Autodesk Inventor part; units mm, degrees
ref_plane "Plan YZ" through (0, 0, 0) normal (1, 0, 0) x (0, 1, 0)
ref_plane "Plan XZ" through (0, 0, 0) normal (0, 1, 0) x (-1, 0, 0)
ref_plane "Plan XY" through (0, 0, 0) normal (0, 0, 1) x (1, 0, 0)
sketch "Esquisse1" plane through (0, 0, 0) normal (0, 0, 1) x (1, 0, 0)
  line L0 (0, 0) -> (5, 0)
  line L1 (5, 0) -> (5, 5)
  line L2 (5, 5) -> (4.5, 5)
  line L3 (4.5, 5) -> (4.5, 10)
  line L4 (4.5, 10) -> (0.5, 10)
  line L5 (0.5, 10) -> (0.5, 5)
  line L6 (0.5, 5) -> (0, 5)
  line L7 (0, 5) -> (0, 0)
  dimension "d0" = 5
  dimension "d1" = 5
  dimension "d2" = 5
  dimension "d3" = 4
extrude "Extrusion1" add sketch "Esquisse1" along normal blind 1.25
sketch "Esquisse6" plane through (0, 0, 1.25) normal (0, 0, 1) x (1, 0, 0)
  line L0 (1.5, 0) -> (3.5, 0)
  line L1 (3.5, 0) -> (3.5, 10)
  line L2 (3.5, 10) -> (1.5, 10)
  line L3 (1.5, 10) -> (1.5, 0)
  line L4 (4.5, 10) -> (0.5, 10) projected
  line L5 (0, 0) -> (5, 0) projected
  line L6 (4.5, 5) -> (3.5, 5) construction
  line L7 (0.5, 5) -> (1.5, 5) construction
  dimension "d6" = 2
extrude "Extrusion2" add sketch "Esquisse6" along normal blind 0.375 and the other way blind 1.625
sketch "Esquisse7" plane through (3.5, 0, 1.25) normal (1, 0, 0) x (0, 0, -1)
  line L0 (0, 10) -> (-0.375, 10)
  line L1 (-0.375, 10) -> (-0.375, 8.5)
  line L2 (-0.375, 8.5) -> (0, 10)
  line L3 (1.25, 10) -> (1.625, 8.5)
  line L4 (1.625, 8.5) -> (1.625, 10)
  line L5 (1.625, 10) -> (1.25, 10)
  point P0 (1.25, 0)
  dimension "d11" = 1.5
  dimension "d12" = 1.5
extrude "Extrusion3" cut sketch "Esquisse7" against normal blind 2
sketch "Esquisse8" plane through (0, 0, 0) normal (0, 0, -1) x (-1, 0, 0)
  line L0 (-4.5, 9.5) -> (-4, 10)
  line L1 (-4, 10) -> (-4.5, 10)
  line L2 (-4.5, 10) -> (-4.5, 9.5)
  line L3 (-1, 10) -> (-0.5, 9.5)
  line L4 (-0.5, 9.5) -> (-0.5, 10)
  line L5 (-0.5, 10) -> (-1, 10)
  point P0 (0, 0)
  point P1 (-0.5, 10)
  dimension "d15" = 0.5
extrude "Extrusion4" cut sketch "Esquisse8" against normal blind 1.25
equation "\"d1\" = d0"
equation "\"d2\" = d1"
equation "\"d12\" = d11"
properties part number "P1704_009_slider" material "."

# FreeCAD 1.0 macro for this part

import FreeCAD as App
import Part
import Sketcher
from FreeCAD import Vector
Q = App.Units.Quantity

doc = App.newDocument("Part")
params = doc.addObject("Spreadsheet::Sheet", "Params")
for row, (alias, value) in enumerate([
    ("sketch1_width", "5 mm"),
    ("sketch1_width2", "4 mm"),
    ("pad1_length", "1.25 mm"),
    ("sketch2_width", "2 mm"),
    ("sketch2_height", "10 mm"),
    ("pad2_length", "0.375 mm"),
    ("pad2_length2", "1.625 mm"),
    ("sketch3_width", "1.5 mm"),
    ("pocket1_length", "2 mm"),
    ("sketch4_width", "0.5 mm"),
    ("pocket2_length", "1.25 mm"),
], start=1):
    params.set(f"A{row}", alias)
    params.set(f"B{row}", "=" + value)
    params.setAlias(f"B{row}", alias)

body = doc.addObject("PartDesign::Body", "Body")

sketch1 = body.newObject("Sketcher::SketchObject", "Sketch")
sketch1.AttachmentSupport = (doc.getObject("XY_Plane"), [""])
sketch1.MapMode = "FlatFace"
sketch1.addGeometry([
    Part.LineSegment(Vector(0, 5, 0), Vector(0, 0, 0)),
    Part.LineSegment(Vector(0, 0, 0), Vector(5, 0, 0)),
    Part.LineSegment(Vector(5, 0, 0), Vector(5, 5, 0)),
    Part.LineSegment(Vector(5, 5, 0), Vector(4.5, 5, 0)),
    Part.LineSegment(Vector(4.5, 5, 0), Vector(4.5, 10, 0)),
    Part.LineSegment(Vector(4.5, 10, 0), Vector(0.5, 10, 0)),
    Part.LineSegment(Vector(0.5, 10, 0), Vector(0.5, 5, 0)),
    Part.LineSegment(Vector(0.5, 5, 0), Vector(0, 5, 0)),
], False)
sketch1.addConstraint([
    Sketcher.Constraint("Coincident", 0, 2, 1, 1),
    Sketcher.Constraint("Coincident", 1, 2, 2, 1),
    Sketcher.Constraint("Coincident", 2, 2, 3, 1),
    Sketcher.Constraint("Coincident", 3, 2, 4, 1),
    Sketcher.Constraint("Coincident", 4, 2, 5, 1),
    Sketcher.Constraint("Coincident", 5, 2, 6, 1),
    Sketcher.Constraint("Coincident", 6, 2, 7, 1),
    Sketcher.Constraint("Coincident", 7, 2, 0, 1),
    Sketcher.Constraint("Vertical", 0),
    Sketcher.Constraint("Horizontal", 1),
    Sketcher.Constraint("Vertical", 2),
    Sketcher.Constraint("Horizontal", 3),
    Sketcher.Constraint("Vertical", 4),
    Sketcher.Constraint("Horizontal", 5),
    Sketcher.Constraint("Vertical", 6),
    Sketcher.Constraint("Horizontal", 7),
    Sketcher.Constraint("Coincident", 0, 2, -1, 1),
    Sketcher.Constraint("Horizontal", 3, 2, 6, 2),
    Sketcher.Constraint("Equal", 3, 7),
    Sketcher.Constraint("Equal", 1, 0),
    Sketcher.Constraint("Equal", 2, 4),
    Sketcher.Constraint("DistanceX", 1, 1, 1, 2, Q("5 mm")),
    Sketcher.Constraint("DistanceX", 5, 2, 5, 1, Q("4 mm")),
])
sketch1.setExpression("Constraints[21]", "Params.sketch1_width")
sketch1.setExpression("Constraints[22]", "Params.sketch1_width2")
pad1 = body.newObject("PartDesign::Pad", "Pad")
pad1.Profile = sketch1
pad1.setExpression("Length", "Params.pad1_length")

sketch2 = body.newObject("Sketcher::SketchObject", "Sketch001")
sketch2.AttachmentSupport = (doc.getObject("XY_Plane"), [""])
sketch2.MapMode = "FlatFace"
sketch2.AttachmentOffset = App.Placement(Vector(0, 0, 1.25), App.Rotation())
sketch2.addGeometry([
    Part.LineSegment(Vector(1.5, 10, 0), Vector(1.5, 0, 0)),
    Part.LineSegment(Vector(1.5, 0, 0), Vector(3.5, 0, 0)),
    Part.LineSegment(Vector(3.5, 0, 0), Vector(3.5, 10, 0)),
    Part.LineSegment(Vector(3.5, 10, 0), Vector(1.5, 10, 0)),
], False)
sketch2.addConstraint([
    Sketcher.Constraint("Coincident", 0, 2, 1, 1),
    Sketcher.Constraint("Coincident", 1, 2, 2, 1),
    Sketcher.Constraint("Coincident", 2, 2, 3, 1),
    Sketcher.Constraint("Coincident", 3, 2, 0, 1),
    Sketcher.Constraint("Vertical", 0),
    Sketcher.Constraint("Horizontal", 1),
    Sketcher.Constraint("Vertical", 2),
    Sketcher.Constraint("Horizontal", 3),
    Sketcher.Constraint("PointOnObject", 0, 2, -1),
    Sketcher.Constraint("DistanceX", 1, 1, 1, 2, Q("2 mm")),
    Sketcher.Constraint("DistanceY", 0, 2, 0, 1, Q("10 mm")),
    Sketcher.Constraint("DistanceX", -1, 1, 0, 2, Q("1.5 mm")),
])
sketch2.setExpression("Constraints[9]", "Params.sketch2_width")
sketch2.setExpression("Constraints[10]", "Params.sketch2_height")
pad2 = body.newObject("PartDesign::Pad", "Pad001")
pad2.Profile = sketch2
pad2.Type = "TwoLengths"
pad2.setExpression("Length", "Params.pad2_length")
pad2.setExpression("Length2", "Params.pad2_length2")

sketch3 = body.newObject("Sketcher::SketchObject", "Sketch002")
sketch3.AttachmentSupport = (doc.getObject("YZ_Plane"), [""])
sketch3.MapMode = "FlatFace"
sketch3.AttachmentOffset = App.Placement(Vector(0, 0, 3.5), App.Rotation())
sketch3.addGeometry([
    Part.LineSegment(Vector(8.5, 1.625, 0), Vector(10, 1.25, 0)),
    Part.LineSegment(Vector(10, 1.25, 0), Vector(10, 1.625, 0)),
    Part.LineSegment(Vector(10, 1.625, 0), Vector(8.5, 1.625, 0)),
    Part.LineSegment(Vector(10, -0.375, 0), Vector(10, 0, 0)),
    Part.LineSegment(Vector(10, 0, 0), Vector(8.5, -0.375, 0)),
    Part.LineSegment(Vector(8.5, -0.375, 0), Vector(10, -0.375, 0)),
], False)
sketch3.addConstraint([
    Sketcher.Constraint("Coincident", 0, 2, 1, 1),
    Sketcher.Constraint("Coincident", 1, 2, 2, 1),
    Sketcher.Constraint("Coincident", 2, 2, 0, 1),
    Sketcher.Constraint("Coincident", 3, 2, 4, 1),
    Sketcher.Constraint("Coincident", 4, 2, 5, 1),
    Sketcher.Constraint("Coincident", 5, 2, 3, 1),
    Sketcher.Constraint("Vertical", 1),
    Sketcher.Constraint("Horizontal", 2),
    Sketcher.Constraint("Vertical", 3),
    Sketcher.Constraint("Horizontal", 5),
    Sketcher.Constraint("PointOnObject", 3, 2, -1),
    Sketcher.Constraint("Vertical", 1, 2, 3, 2),
    Sketcher.Constraint("Vertical", 2, 2, 4, 2),
    Sketcher.Constraint("Equal", 1, 3),
    Sketcher.Constraint("DistanceX", 2, 2, 2, 1, Q("1.5 mm")),
    Sketcher.Constraint("DistanceX", -1, 1, 0, 2, Q("10 mm")),
    Sketcher.Constraint("DistanceY", 4, 2, 2, 2, Q("2 mm")),
    Sketcher.Constraint("DistanceY", 1, 1, 1, 2, Q("0.375 mm")),
])
sketch3.setExpression("Constraints[14]", "Params.sketch3_width")
pocket1 = body.newObject("PartDesign::Pocket", "Pocket")
pocket1.Profile = sketch3
pocket1.setExpression("Length", "Params.pocket1_length")

sketch4 = body.newObject("Sketcher::SketchObject", "Sketch003")
sketch4.AttachmentSupport = (doc.getObject("XY_Plane"), [""])
sketch4.MapMode = "FlatFace"
sketch4.addGeometry([
    Part.LineSegment(Vector(4.5, 10, 0), Vector(4.5, 9.5, 0)),
    Part.LineSegment(Vector(4.5, 9.5, 0), Vector(4, 10, 0)),
    Part.LineSegment(Vector(4, 10, 0), Vector(4.5, 10, 0)),
    Part.LineSegment(Vector(0.5, 10, 0), Vector(1, 10, 0)),
    Part.LineSegment(Vector(1, 10, 0), Vector(0.5, 9.5, 0)),
    Part.LineSegment(Vector(0.5, 9.5, 0), Vector(0.5, 10, 0)),
], False)
sketch4.addConstraint([
    Sketcher.Constraint("Coincident", 0, 2, 1, 1),
    Sketcher.Constraint("Coincident", 1, 2, 2, 1),
    Sketcher.Constraint("Coincident", 2, 2, 0, 1),
    Sketcher.Constraint("Coincident", 3, 2, 4, 1),
    Sketcher.Constraint("Coincident", 4, 2, 5, 1),
    Sketcher.Constraint("Coincident", 5, 2, 3, 1),
    Sketcher.Constraint("Vertical", 0),
    Sketcher.Constraint("Horizontal", 2),
    Sketcher.Constraint("Horizontal", 3),
    Sketcher.Constraint("Vertical", 5),
    Sketcher.Constraint("Perpendicular", 1, 4),
    Sketcher.Constraint("Horizontal", 2, 2, 3, 2),
    Sketcher.Constraint("Horizontal", 0, 2, 4, 2),
    Sketcher.Constraint("Equal", 2, 3),
    Sketcher.Constraint("DistanceX", 2, 1, 2, 2, Q("0.5 mm")),
    Sketcher.Constraint("DistanceX", -1, 1, 4, 2, Q("0.5 mm")),
    Sketcher.Constraint("DistanceX", -1, 1, 1, 2, Q("4 mm")),
    Sketcher.Constraint("DistanceY", -1, 1, 1, 2, Q("10 mm")),
])
sketch4.setExpression("Constraints[14]", "Params.sketch4_width")
pocket2 = body.newObject("PartDesign::Pocket", "Pocket001")
pocket2.Profile = sketch4
pocket2.setExpression("Length", "Params.pocket2_length")
pocket2.Reversed = True

doc.recompute()
